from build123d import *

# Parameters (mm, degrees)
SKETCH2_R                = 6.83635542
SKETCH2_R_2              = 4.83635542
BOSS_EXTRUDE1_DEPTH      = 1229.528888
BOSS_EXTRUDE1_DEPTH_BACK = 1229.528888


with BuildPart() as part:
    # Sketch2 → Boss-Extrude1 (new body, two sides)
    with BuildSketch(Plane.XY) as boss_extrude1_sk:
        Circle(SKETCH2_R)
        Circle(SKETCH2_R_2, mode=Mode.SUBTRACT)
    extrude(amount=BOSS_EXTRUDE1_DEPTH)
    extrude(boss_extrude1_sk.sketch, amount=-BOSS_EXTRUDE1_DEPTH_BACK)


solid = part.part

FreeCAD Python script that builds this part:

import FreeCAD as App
import Part
import Sketcher

V = App.Vector
Q = App.Units.Quantity

doc = App.newDocument("Part")
body = doc.addObject("PartDesign::Body", "Body")

# Sketch on XY plane
sketch1 = body.newObject("Sketcher::SketchObject", "Sketch")
sketch1.AttachmentSupport = (doc.getObject("XY_Plane"), [""])
sketch1.MapMode = "FlatFace"
sketch1.addGeometry([
    Part.Circle(V(0, 0, 0), V(0, 0, 1), 6.8),
    Part.Circle(V(0, 0, 0), V(0, 0, 1), 4.8),
], False)
sketch1.addConstraint([
    Sketcher.Constraint("Coincident", 0, 3, -1, 1),
    Sketcher.Constraint("Coincident", 1, 3, -1, 1),
    Sketcher.Constraint("Diameter", 0, Q("13.672711 mm")),
    Sketcher.Constraint("Diameter", 1, Q("9.672711 mm")),
])
pad1 = body.newObject("PartDesign::Pad", "Pad")
pad1.Profile = sketch1
pad1.Type = "TwoLengths"
pad1.Length = 1229.528888
pad1.Length2 = 1229.528888

doc.recompute()
